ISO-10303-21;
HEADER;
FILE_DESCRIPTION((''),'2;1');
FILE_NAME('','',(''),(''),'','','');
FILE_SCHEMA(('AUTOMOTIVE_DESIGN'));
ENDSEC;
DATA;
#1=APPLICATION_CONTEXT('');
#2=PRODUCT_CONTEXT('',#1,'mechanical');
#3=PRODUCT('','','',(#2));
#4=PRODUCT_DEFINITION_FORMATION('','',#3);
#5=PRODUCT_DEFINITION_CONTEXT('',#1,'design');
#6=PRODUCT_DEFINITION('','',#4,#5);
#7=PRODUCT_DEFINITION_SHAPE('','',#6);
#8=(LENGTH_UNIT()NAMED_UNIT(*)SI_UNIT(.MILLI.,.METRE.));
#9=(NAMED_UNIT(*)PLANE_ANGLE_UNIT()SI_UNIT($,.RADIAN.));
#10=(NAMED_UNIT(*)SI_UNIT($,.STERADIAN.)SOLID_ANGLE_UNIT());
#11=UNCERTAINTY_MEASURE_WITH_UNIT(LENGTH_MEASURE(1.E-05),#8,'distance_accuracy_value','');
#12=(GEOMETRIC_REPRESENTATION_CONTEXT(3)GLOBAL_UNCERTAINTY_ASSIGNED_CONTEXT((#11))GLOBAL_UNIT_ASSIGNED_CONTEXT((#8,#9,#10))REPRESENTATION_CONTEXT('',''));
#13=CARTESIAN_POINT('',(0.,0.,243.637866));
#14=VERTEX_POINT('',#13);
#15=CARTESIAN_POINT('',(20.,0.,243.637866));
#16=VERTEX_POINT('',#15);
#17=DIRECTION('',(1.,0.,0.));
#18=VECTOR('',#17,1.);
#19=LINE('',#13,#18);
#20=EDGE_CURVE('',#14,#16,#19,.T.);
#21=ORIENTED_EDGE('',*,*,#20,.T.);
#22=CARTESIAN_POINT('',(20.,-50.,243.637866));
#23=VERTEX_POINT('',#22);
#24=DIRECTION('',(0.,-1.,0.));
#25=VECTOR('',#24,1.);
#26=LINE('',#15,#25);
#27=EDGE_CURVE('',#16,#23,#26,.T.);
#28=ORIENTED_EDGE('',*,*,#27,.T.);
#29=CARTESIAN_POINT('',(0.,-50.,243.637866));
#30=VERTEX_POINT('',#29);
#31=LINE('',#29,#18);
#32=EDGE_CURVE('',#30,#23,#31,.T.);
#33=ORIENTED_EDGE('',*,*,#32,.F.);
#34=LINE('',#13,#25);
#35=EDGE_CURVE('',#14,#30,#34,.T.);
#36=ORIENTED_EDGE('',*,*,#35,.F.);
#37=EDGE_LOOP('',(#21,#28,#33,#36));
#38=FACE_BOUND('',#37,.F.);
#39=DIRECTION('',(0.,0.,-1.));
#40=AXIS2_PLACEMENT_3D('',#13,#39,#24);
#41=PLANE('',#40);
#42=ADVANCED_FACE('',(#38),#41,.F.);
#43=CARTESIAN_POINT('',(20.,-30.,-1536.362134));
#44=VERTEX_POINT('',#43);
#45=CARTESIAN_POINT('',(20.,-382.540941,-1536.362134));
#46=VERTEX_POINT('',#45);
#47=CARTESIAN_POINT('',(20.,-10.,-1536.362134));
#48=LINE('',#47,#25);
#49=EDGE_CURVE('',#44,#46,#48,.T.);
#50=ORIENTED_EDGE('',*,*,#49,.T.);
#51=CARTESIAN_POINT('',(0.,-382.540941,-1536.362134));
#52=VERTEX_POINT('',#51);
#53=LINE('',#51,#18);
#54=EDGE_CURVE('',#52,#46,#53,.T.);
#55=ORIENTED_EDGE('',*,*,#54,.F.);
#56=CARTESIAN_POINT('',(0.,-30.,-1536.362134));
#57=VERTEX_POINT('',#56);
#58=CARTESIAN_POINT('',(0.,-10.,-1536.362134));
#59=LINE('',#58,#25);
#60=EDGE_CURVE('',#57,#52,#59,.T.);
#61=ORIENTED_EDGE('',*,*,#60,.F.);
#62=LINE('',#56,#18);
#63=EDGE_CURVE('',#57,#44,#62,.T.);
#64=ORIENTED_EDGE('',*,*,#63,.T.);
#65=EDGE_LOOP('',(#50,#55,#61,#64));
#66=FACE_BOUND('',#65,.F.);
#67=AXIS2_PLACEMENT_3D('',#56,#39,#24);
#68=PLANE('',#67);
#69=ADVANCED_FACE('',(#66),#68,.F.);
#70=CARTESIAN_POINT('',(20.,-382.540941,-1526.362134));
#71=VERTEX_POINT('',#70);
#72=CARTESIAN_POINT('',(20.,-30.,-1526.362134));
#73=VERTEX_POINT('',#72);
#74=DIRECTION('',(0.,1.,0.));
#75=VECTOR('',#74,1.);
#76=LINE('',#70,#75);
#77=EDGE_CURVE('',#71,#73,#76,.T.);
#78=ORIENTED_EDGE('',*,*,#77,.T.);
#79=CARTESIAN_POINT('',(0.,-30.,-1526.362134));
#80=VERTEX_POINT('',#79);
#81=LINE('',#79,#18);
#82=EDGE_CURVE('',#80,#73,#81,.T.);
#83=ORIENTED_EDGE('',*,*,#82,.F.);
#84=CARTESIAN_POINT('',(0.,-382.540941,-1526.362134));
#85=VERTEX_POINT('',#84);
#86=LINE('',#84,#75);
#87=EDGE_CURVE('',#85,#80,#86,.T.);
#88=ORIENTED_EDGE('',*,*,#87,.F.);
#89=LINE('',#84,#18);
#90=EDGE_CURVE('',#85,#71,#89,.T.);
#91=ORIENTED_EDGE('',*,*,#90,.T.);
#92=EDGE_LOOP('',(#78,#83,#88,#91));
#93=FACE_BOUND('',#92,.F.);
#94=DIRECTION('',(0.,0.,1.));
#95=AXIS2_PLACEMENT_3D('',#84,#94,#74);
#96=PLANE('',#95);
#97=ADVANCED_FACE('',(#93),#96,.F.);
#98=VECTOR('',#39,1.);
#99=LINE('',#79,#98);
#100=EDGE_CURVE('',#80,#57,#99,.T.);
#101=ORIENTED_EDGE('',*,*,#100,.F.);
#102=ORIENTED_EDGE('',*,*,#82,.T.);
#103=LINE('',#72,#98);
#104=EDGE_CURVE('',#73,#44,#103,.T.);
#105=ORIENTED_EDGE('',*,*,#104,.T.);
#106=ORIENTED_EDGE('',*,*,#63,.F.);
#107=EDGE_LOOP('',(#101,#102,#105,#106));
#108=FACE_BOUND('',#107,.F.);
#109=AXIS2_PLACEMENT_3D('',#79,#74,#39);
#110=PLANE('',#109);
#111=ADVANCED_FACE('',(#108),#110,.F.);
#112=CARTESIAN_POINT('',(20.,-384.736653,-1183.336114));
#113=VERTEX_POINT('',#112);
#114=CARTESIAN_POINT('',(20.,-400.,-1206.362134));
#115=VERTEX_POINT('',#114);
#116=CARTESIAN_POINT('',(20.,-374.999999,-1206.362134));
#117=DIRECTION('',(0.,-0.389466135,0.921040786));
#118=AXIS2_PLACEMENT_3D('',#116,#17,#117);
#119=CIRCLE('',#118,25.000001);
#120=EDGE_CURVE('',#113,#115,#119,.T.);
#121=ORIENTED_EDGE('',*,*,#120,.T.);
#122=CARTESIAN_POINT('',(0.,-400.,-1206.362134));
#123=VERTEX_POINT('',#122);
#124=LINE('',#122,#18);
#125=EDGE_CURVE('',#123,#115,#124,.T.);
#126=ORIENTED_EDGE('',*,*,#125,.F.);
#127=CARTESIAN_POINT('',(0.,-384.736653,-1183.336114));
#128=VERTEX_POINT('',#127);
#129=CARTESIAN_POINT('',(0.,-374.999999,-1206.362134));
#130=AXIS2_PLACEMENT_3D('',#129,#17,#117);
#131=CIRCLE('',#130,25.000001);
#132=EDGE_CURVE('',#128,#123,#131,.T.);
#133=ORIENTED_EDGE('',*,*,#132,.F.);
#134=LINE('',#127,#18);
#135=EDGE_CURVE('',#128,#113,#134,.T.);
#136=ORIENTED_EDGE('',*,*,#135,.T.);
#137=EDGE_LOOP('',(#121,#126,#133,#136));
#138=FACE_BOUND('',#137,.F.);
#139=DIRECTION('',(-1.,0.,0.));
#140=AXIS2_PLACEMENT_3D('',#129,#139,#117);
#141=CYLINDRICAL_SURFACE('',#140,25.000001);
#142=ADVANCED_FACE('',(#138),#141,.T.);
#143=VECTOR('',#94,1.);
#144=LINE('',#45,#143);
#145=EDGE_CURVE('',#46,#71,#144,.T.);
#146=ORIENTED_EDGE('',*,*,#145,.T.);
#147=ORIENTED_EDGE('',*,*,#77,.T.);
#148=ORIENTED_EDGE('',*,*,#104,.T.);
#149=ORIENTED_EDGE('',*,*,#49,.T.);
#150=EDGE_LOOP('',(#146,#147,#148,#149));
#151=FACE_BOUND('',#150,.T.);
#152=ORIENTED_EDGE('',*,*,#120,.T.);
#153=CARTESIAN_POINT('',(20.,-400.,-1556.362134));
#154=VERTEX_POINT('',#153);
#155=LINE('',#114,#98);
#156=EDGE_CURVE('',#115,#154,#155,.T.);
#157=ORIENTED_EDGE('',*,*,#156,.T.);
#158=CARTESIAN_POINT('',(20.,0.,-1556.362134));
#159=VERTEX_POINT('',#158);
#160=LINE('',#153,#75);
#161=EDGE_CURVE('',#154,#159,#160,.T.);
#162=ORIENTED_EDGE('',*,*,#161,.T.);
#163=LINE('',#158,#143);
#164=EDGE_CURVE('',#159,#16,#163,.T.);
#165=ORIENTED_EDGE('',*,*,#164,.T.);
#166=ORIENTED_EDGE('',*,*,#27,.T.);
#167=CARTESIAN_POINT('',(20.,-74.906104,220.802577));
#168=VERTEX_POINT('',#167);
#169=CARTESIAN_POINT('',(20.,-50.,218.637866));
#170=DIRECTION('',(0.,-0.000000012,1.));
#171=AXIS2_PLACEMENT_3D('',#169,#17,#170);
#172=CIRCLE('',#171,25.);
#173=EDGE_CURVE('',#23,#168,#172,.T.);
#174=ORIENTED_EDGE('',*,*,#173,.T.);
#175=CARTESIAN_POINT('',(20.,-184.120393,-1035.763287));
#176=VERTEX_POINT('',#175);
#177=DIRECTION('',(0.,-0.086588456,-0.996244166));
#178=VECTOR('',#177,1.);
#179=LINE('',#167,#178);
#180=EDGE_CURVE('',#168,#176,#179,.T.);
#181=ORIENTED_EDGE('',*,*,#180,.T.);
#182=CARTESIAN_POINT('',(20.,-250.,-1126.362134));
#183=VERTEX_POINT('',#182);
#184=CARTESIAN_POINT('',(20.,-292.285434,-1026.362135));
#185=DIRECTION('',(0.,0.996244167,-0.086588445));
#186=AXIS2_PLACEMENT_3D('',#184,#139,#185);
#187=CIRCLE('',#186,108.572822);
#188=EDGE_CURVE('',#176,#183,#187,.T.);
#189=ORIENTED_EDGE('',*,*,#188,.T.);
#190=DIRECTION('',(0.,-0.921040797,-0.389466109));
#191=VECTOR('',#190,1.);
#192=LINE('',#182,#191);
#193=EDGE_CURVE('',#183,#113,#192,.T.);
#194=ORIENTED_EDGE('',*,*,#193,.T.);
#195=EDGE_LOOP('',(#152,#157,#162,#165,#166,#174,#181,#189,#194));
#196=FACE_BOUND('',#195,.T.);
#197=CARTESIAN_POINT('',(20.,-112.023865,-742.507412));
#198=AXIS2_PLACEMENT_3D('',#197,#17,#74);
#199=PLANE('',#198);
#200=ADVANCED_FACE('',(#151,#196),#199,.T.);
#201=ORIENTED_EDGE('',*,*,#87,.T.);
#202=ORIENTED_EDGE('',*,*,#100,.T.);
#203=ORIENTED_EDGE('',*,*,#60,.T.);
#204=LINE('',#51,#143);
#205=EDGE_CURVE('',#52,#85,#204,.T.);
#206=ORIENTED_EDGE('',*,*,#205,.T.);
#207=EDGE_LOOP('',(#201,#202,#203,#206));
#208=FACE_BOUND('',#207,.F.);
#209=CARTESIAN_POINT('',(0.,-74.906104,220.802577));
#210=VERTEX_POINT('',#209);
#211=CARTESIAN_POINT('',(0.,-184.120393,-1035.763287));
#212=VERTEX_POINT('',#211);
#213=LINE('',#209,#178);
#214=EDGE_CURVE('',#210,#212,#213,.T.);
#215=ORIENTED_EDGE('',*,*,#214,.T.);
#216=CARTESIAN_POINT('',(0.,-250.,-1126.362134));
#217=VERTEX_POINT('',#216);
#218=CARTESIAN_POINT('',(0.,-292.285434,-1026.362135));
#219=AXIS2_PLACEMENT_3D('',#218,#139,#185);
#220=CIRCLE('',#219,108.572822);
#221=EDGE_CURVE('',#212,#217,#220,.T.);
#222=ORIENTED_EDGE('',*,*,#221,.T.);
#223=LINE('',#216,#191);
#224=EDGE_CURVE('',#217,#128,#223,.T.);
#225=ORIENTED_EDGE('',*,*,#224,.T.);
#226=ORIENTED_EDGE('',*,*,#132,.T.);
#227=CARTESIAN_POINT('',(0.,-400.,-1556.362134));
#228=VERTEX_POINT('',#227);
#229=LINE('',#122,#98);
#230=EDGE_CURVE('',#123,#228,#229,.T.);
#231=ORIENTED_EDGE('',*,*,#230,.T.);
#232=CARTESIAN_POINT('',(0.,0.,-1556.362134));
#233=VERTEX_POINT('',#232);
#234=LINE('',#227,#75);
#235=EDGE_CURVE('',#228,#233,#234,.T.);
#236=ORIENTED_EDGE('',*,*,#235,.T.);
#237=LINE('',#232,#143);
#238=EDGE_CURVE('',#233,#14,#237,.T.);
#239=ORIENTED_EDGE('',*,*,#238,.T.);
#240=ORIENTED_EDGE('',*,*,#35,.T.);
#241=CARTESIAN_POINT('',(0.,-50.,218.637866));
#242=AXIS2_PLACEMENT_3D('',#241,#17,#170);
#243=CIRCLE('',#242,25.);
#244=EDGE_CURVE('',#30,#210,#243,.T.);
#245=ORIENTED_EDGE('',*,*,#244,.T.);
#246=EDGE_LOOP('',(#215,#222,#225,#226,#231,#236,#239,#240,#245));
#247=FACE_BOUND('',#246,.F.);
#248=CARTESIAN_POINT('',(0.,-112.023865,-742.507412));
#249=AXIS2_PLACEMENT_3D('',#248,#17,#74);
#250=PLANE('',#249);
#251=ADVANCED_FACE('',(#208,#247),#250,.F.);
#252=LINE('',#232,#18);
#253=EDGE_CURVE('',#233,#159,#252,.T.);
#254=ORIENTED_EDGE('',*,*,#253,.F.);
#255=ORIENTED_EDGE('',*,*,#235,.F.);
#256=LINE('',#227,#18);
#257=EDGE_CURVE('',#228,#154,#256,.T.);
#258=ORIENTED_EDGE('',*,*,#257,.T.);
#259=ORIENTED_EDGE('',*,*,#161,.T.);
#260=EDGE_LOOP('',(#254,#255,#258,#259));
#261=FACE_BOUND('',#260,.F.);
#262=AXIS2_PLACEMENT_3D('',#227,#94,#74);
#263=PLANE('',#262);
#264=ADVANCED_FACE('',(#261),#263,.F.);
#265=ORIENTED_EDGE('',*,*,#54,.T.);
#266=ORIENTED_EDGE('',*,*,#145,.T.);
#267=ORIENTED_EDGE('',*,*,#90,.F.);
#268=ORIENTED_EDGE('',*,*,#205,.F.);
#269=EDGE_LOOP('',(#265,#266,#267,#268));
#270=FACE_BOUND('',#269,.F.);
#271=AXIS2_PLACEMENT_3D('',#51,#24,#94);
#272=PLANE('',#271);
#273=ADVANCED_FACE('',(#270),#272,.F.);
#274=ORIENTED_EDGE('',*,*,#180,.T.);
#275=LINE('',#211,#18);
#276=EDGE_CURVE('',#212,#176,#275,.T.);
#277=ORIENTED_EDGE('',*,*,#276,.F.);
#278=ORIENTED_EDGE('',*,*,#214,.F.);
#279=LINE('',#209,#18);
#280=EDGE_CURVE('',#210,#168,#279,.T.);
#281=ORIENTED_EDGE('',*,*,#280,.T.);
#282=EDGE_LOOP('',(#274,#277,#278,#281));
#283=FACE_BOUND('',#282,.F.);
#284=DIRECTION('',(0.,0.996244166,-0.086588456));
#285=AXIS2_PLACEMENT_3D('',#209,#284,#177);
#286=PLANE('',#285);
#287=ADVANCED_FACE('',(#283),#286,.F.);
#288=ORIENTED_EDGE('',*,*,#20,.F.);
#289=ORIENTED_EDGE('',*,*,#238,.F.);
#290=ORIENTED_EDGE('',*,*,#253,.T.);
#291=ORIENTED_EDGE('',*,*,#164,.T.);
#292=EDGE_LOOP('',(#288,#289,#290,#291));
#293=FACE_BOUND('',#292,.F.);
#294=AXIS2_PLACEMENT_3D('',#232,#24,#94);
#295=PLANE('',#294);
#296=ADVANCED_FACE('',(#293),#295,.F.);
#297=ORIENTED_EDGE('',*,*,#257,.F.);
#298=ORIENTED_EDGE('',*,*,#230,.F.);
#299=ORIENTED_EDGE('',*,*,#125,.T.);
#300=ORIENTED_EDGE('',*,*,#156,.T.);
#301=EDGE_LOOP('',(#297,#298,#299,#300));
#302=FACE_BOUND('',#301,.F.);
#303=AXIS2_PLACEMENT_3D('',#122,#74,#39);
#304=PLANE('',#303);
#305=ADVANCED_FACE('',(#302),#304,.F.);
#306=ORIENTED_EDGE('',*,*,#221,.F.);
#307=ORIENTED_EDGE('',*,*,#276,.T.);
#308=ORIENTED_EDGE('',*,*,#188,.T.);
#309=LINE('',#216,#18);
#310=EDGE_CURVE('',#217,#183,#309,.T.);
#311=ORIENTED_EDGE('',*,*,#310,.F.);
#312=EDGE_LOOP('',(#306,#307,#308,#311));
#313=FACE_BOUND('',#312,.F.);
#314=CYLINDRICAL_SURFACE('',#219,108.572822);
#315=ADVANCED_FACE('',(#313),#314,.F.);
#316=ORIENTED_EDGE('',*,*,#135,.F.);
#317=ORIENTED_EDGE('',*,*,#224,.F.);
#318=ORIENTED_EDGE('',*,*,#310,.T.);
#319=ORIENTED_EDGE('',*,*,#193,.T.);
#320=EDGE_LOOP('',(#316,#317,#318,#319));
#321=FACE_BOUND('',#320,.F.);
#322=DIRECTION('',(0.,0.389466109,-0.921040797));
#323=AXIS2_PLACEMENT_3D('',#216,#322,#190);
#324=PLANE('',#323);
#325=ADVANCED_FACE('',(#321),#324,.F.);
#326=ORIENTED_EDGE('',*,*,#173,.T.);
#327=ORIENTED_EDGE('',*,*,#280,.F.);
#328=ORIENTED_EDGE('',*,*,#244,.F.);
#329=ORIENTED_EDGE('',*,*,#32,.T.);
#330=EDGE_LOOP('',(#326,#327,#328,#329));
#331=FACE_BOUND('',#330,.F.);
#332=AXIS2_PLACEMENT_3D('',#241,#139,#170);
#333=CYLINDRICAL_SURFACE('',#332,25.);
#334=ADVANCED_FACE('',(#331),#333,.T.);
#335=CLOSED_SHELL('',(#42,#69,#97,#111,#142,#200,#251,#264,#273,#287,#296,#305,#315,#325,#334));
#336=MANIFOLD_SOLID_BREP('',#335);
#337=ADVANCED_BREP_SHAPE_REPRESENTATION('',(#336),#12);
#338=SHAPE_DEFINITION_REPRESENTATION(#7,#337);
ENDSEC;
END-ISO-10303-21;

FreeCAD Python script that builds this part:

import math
import FreeCAD as App
import Part
import Sketcher

V = App.Vector
Q = App.Units.Quantity

doc = App.newDocument("Part")
params = doc.addObject("Spreadsheet::Sheet", "Params")
for row, (alias, value) in enumerate([
    ("sketch1_radius", "25 mm"),
    ("sketch1_width", "50 mm"),
    ("sketch1_width2", "400 mm"),
    ("sketch1_height", "1800 mm"),
    ("sketch1_height2", "350 mm"),
    ("pad1_length", "20 mm"),
], start=1):
    params.set(f"A{row}", alias)
    params.set(f"B{row}", "=" + value)
    params.setAlias(f"B{row}", alias)

body = doc.addObject("PartDesign::Body", "Body")

sketch1 = body.newObject("Sketcher::SketchObject", "Sketch")
sketch1.AttachmentSupport = (doc.getObject("YZ_Plane"), [""])
sketch1.MapMode = "FlatFace"
sketch1.addGeometry(Part.LineSegment(V(0, -1556.362134, 0), V(0, 243.637866, 0)), False)
sketch1.addGeometry(Part.LineSegment(V(0, 243.637866, 0), V(-50, 243.637866, 0)), False)
sketch1.addGeometry(Part.ArcOfCircle(Part.Circle(V(-50, 218.637866, 0), V(0, 0, 1), 25), math.radians(90.000001), math.radians(175.032627)), False)
sketch1.addGeometry(Part.LineSegment(V(-74.906104, 220.802577, 0), V(-184.120393, -1035.763287, 0)), False)
sketch1.addGeometry(Part.ArcOfCircle(Part.Circle(V(-292.285434, -1026.362135, 0), V(0, 0, 1), 108.572822), math.radians(-67.078717), math.radians(-4.967373)), False)
sketch1.addGeometry(Part.LineSegment(V(-250, -1126.362134, 0), V(-384.736653, -1183.336114, 0)), False)
sketch1.addGeometry(Part.ArcOfCircle(Part.Circle(V(-374.999999, -1206.362134, 0), V(0, 0, 1), 25.000001), math.radians(112.921285), math.radians(180)), False)
sketch1.addGeometry(Part.LineSegment(V(-400, -1206.362134, 0), V(-400, -1556.362134, 0)), False)
sketch1.addGeometry(Part.LineSegment(V(-400, -1556.362134, 0), V(0, -1556.362134, 0)), False)
sketch1.addGeometry(Part.LineSegment(V(-30, -1536.362134, 0), V(-382.540941, -1536.362134, 0)), False)
sketch1.addGeometry(Part.LineSegment(V(-382.540941, -1536.362134, 0), V(-382.540941, -1526.362134, 0)), False)
sketch1.addGeometry(Part.LineSegment(V(-382.540941, -1526.362134, 0), V(-30, -1526.362134, 0)), False)
sketch1.addGeometry(Part.LineSegment(V(-30, -1526.362134, 0), V(-30, -1536.362134, 0)), False)
sketch1.addConstraint(Sketcher.Constraint("Coincident", 0, 2, 1, 1))
sketch1.addConstraint(Sketcher.Constraint("Tangent", 1, 2, 2, 1))
sketch1.addConstraint(Sketcher.Constraint("Tangent", 2, 2, 3, 1))
sketch1.addConstraint(Sketcher.Constraint("Tangent", 3, 2, 4, 2))
sketch1.addConstraint(Sketcher.Constraint("Tangent", 4, 1, 5, 1))
sketch1.addConstraint(Sketcher.Constraint("Tangent", 5, 2, 6, 1))
sketch1.addConstraint(Sketcher.Constraint("Tangent", 6, 2, 7, 1))
sketch1.addConstraint(Sketcher.Constraint("Coincident", 7, 2, 8, 1))
sketch1.addConstraint(Sketcher.Constraint("Coincident", 8, 2, 0, 1))
sketch1.addConstraint(Sketcher.Constraint("Coincident", 9, 2, 10, 1))
sketch1.addConstraint(Sketcher.Constraint("Coincident", 10, 2, 11, 1))
sketch1.addConstraint(Sketcher.Constraint("Coincident", 11, 2, 12, 1))
sketch1.addConstraint(Sketcher.Constraint("Coincident", 12, 2, 9, 1))
sketch1.addConstraint(Sketcher.Constraint("Vertical", 0))
sketch1.addConstraint(Sketcher.Constraint("Horizontal", 1))
sketch1.addConstraint(Sketcher.Constraint("Vertical", 7))
sketch1.addConstraint(Sketcher.Constraint("Horizontal", 8))
sketch1.addConstraint(Sketcher.Constraint("Horizontal", 9))
sketch1.addConstraint(Sketcher.Constraint("Vertical", 10))
sketch1.addConstraint(Sketcher.Constraint("Horizontal", 11))
sketch1.addConstraint(Sketcher.Constraint("Vertical", 12))
sketch1.addConstraint(Sketcher.Constraint("Equal", 2, 6))
sketch1.addConstraint(Sketcher.Constraint("PointOnObject", 0, 2, -2))
sketch1.addConstraint(Sketcher.Constraint("Radius", 2, Q("25 mm")))
sketch1.addConstraint(Sketcher.Constraint("DistanceX", 1, 2, 1, 1, Q("50 mm")))
sketch1.addConstraint(Sketcher.Constraint("DistanceX", 8, 1, 8, 2, Q("400 mm")))
sketch1.addConstraint(Sketcher.Constraint("DistanceY", 0, 1, 0, 2, Q("1800 mm")))
sketch1.addConstraint(Sketcher.Constraint("DistanceY", 7, 2, 7, 1, Q("350 mm")))
sketch1.addConstraint(Sketcher.Constraint("DistanceY", 10, 1, 10, 2, Q("10 mm")))
sketch1.addConstraint(Sketcher.Constraint("DistanceX", 4, 1, -1, 1, Q("250 mm")))
sketch1.addConstraint(Sketcher.Constraint("DistanceX", 11, 2, -1, 1, Q("30 mm")))
sketch1.addConstraint(Sketcher.Constraint("DistanceY", 4, 3, 2, 3, Q("1245.000001 mm")))
sketch1.addConstraint(Sketcher.Constraint("DistanceY", 4, 1, 4, 3, Q("99.999999 mm")))
sketch1.addConstraint(Sketcher.Constraint("DistanceY", 7, 2, 9, 2, Q("20 mm")))
sketch1.addConstraint(Sketcher.Constraint("DistanceX", 9, 2, 9, 1, Q("352.540941 mm")))
sketch1.addConstraint(Sketcher.Constraint("DistanceY", -1, 1, 2, 3, Q("218.637866 mm")))
sketch1.setExpression("Constraints[23]", "Params.sketch1_radius")
sketch1.setExpression("Constraints[24]", "Params.sketch1_width")
sketch1.setExpression("Constraints[25]", "Params.sketch1_width2")
sketch1.setExpression("Constraints[26]", "Params.sketch1_height")
sketch1.setExpression("Constraints[27]", "Params.sketch1_height2")
pad1 = body.newObject("PartDesign::Pad", "Pad")
pad1.Profile = sketch1
pad1.setExpression("Length", "Params.pad1_length")

doc.recompute()
